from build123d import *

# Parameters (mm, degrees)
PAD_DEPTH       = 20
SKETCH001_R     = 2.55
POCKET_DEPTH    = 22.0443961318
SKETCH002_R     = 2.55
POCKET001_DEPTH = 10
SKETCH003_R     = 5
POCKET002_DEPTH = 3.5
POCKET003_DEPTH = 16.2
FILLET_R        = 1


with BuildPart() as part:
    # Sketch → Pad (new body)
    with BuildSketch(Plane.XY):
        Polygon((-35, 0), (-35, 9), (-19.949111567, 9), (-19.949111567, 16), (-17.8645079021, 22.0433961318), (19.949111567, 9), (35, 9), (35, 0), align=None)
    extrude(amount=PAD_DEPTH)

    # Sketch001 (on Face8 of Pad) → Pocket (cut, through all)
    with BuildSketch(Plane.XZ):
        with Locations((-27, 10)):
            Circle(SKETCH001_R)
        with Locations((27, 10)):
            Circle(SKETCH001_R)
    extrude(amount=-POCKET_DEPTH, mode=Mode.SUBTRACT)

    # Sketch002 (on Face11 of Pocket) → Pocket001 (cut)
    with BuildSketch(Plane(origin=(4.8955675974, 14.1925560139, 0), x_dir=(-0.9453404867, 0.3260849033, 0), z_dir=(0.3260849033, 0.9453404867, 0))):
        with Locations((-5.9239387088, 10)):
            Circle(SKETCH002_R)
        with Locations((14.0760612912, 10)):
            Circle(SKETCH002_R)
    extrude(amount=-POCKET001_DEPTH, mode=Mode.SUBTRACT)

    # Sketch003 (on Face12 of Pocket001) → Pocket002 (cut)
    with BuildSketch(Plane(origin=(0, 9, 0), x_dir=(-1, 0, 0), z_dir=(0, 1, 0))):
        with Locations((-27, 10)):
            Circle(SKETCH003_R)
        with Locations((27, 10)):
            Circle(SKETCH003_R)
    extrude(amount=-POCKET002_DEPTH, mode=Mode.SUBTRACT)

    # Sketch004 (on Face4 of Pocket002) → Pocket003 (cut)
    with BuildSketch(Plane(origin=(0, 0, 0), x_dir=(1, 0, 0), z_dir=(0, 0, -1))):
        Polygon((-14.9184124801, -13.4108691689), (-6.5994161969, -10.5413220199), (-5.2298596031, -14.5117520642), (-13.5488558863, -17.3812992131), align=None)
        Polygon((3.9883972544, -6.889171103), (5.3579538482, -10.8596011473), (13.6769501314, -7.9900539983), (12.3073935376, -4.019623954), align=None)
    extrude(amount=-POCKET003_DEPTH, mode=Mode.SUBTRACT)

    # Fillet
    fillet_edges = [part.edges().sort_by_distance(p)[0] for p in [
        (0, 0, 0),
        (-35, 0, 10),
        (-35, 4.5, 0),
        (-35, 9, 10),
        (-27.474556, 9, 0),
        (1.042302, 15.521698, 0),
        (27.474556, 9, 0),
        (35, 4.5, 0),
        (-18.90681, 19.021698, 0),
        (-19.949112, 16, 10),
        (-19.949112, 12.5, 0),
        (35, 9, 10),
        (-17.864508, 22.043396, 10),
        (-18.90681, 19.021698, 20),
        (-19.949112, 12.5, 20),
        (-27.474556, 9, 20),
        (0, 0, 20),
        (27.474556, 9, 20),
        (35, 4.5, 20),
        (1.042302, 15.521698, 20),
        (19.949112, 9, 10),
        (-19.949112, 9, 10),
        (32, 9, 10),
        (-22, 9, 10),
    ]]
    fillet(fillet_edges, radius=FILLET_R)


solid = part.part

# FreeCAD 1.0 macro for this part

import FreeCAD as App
import Part
import Sketcher
Q = App.Units.Quantity


def edges_at(feature, points):
    """Names of the edges that pass closest to the given points."""
    edges = feature.Shape.Edges
    near = lambda p: min(range(len(edges)), key=lambda i: edges[i].distToShape(Part.Vertex(*p))[0])
    return sorted({f"Edge{near(p) + 1}" for p in points})

doc = App.newDocument("Part")
body = doc.addObject("PartDesign::Body", "Body")

# Sketch on XY plane
sketch1 = body.newObject("Sketcher::SketchObject", "Sketch")
sketch1.AttachmentSupport = (doc.getObject("XY_Plane"), [""])
sketch1.MapMode = "FlatFace"
sketch1.addGeometry(Part.LineSegment(App.Vector(-35, 9, 0), App.Vector(-35, 0, 0)), False)
sketch1.addGeometry(Part.LineSegment(App.Vector(-35, 0, 0), App.Vector(35, 0, 0)), False)
sketch1.addGeometry(Part.LineSegment(App.Vector(35, 0, 0), App.Vector(35, 9, 0)), False)
sketch1.addGeometry(Part.LineSegment(App.Vector(35, 9, 0), App.Vector(19.949112, 9, 0)), False)
sketch1.addGeometry(Part.LineSegment(App.Vector(19.949112, 9, 0), App.Vector(-17.864508, 22.043396, 0)), False)
sketch1.addGeometry(Part.LineSegment(App.Vector(-17.864508, 22.043396, 0), App.Vector(-19.949112, 16, 0)), False)
sketch1.addGeometry(Part.LineSegment(App.Vector(-19.949112, 16, 0), App.Vector(-19.949112, 9, 0)), False)
sketch1.addGeometry(Part.LineSegment(App.Vector(-19.949112, 9, 0), App.Vector(-35, 9, 0)), False)
sketch1.addConstraint(Sketcher.Constraint("Coincident", 0, 2, 1, 1))
sketch1.addConstraint(Sketcher.Constraint("Coincident", 1, 2, 2, 1))
sketch1.addConstraint(Sketcher.Constraint("Coincident", 2, 2, 3, 1))
sketch1.addConstraint(Sketcher.Constraint("Coincident", 3, 2, 4, 1))
sketch1.addConstraint(Sketcher.Constraint("Coincident", 4, 2, 5, 1))
sketch1.addConstraint(Sketcher.Constraint("Coincident", 5, 2, 6, 1))
sketch1.addConstraint(Sketcher.Constraint("Coincident", 6, 2, 7, 1))
sketch1.addConstraint(Sketcher.Constraint("Coincident", 7, 2, 0, 1))
sketch1.addConstraint(Sketcher.Constraint("Vertical", 0))
sketch1.addConstraint(Sketcher.Constraint("Horizontal", 1))
sketch1.addConstraint(Sketcher.Constraint("Vertical", 2))
sketch1.addConstraint(Sketcher.Constraint("Horizontal", 3))
sketch1.addConstraint(Sketcher.Constraint("Vertical", 6))
sketch1.addConstraint(Sketcher.Constraint("Horizontal", 7))
sketch1.addConstraint(Sketcher.Constraint("Symmetric", 0, 2, 1, 2, -1, 1))
sketch1.addConstraint(Sketcher.Constraint("Symmetric", 3, 2, 6, 2, -2))
sketch1.addConstraint(Sketcher.Constraint("Perpendicular", 4, 5))
sketch1.addConstraint(Sketcher.Constraint("DistanceX", 1, 1, 1, 2, Q("70 mm")))
sketch1.addConstraint(Sketcher.Constraint("DistanceY", 0, 2, 0, 1, Q("9 mm")))
sketch1.addConstraint(Sketcher.Constraint("DistanceY", 6, 2, 6, 1, Q("7 mm")))
sketch1.addConstraint(Sketcher.Constraint("Distance", 4, Q("40 mm")))
sketch1.addConstraint(Sketcher.Constraint("DistanceX", 3, 2, 3, 1, Q("15.050888 mm")))
pad1 = body.newObject("PartDesign::Pad", "Pad")
pad1.Profile = sketch1
pad1.Length = 20

# Sketch on XZ plane
sketch2 = body.newObject("Sketcher::SketchObject", "Sketch001")
sketch2.AttachmentSupport = (doc.getObject("XZ_Plane"), [""])
sketch2.MapMode = "FlatFace"
sketch2.addGeometry(Part.Circle(App.Vector(-27, 10, 0), App.Vector(0, 0, 1), 2.55), False)
sketch2.addGeometry(Part.Circle(App.Vector(27, 10, 0), App.Vector(0, 0, 1), 2.55), False)
sketch2.addConstraint(Sketcher.Constraint("Equal", 0, 1))
sketch2.addConstraint(Sketcher.Constraint("Symmetric", 0, 3, 1, 3, -2))
sketch2.addConstraint(Sketcher.Constraint("Diameter", 0, Q("5.1 mm")))
sketch2.addConstraint(Sketcher.Constraint("DistanceX", 0, 3, -1, 1, Q("27 mm")))
sketch2.addConstraint(Sketcher.Constraint("DistanceY", -1, 1, 0, 3, Q("10 mm")))
pocket1 = body.newObject("PartDesign::Pocket", "Pocket")
pocket1.Profile = sketch2
pocket1.Type = "ThroughAll"

# Sketch on an angled plane
sketch3 = body.newObject("Sketcher::SketchObject", "Sketch002")
sketch3.Placement = App.Placement(App.Vector(4.895568, 14.192556, 0), App.Rotation(App.Vector(-0.945340487, 0.326084903, 0), App.Vector(0, 0, 1), App.Vector(0.326084903, 0.945340487, 0), "ZXY"))
sketch3.addGeometry(Part.Circle(App.Vector(-5.923939, 10, 0), App.Vector(0, 0, 1), 2.55), False)
sketch3.addGeometry(Part.Circle(App.Vector(14.076061, 10, 0), App.Vector(0, 0, 1), 2.55), False)
sketch3.addConstraint(Sketcher.Constraint("Equal", 0, 1))
sketch3.addConstraint(Sketcher.Constraint("Horizontal", 0, 3, 1, 3))
sketch3.addConstraint(Sketcher.Constraint("Diameter", 0, Q("5.1 mm")))
sketch3.addConstraint(Sketcher.Constraint("DistanceY", -1, 1, 0, 3, Q("10 mm")))
sketch3.addConstraint(Sketcher.Constraint("DistanceX", 0, 3, 1, 3, Q("20 mm")))
sketch3.addConstraint(Sketcher.Constraint("DistanceX", 0, 3, -1, 1, Q("5.923939 mm")))
pocket2 = body.newObject("PartDesign::Pocket", "Pocket001")
pocket2.Profile = sketch3
pocket2.Length = 10

# Sketch on XZ plane
sketch4 = body.newObject("Sketcher::SketchObject", "Sketch003")
sketch4.AttachmentSupport = (doc.getObject("XZ_Plane"), [""])
sketch4.MapMode = "FlatFace"
sketch4.AttachmentOffset = App.Placement(App.Vector(0, 0, -9), App.Rotation())
sketch4.addGeometry(Part.Circle(App.Vector(27, 10, 0), App.Vector(0, 0, 1), 5), False)
sketch4.addGeometry(Part.Circle(App.Vector(-27, 10, 0), App.Vector(0, 0, 1), 5), False)
sketch4.addConstraint(Sketcher.Constraint("Equal", 0, 1))
sketch4.addConstraint(Sketcher.Constraint("Symmetric", 0, 3, 1, 3, -2))
sketch4.addConstraint(Sketcher.Constraint("Diameter", 0, Q("10 mm")))
sketch4.addConstraint(Sketcher.Constraint("DistanceX", -1, 1, 0, 3, Q("27 mm")))
sketch4.addConstraint(Sketcher.Constraint("DistanceY", -1, 1, 0, 3, Q("10 mm")))
pocket3 = body.newObject("PartDesign::Pocket", "Pocket002")
pocket3.Profile = sketch4
pocket3.Length = 3.5
pocket3.Reversed = True

# Sketch on XY plane
sketch5 = body.newObject("Sketcher::SketchObject", "Sketch004")
sketch5.AttachmentSupport = (doc.getObject("XY_Plane"), [""])
sketch5.MapMode = "FlatFace"
sketch5.addGeometry(Part.LineSegment(App.Vector(-6.599416, 10.541322, 0), App.Vector(-14.918412, 13.410869, 0)), False)
sketch5.addGeometry(Part.LineSegment(App.Vector(-14.918412, 13.410869, 0), App.Vector(-13.548856, 17.381299, 0)), False)
sketch5.addGeometry(Part.LineSegment(App.Vector(-13.548856, 17.381299, 0), App.Vector(-5.22986, 14.511752, 0)), False)
sketch5.addGeometry(Part.LineSegment(App.Vector(-5.22986, 14.511752, 0), App.Vector(-6.599416, 10.541322, 0)), False)
sketch5.addGeometry(Part.LineSegment(App.Vector(3.988397, 6.889171, 0), App.Vector(5.357954, 10.859601, 0)), False)
sketch5.addGeometry(Part.LineSegment(App.Vector(5.357954, 10.859601, 0), App.Vector(13.67695, 7.990054, 0)), False)
sketch5.addGeometry(Part.LineSegment(App.Vector(13.67695, 7.990054, 0), App.Vector(12.307394, 4.019624, 0)), False)
sketch5.addGeometry(Part.LineSegment(App.Vector(12.307394, 4.019624, 0), App.Vector(3.988397, 6.889171, 0)), False)
sketch5.addConstraint(Sketcher.Constraint("Coincident", 0, 2, 1, 1))
sketch5.addConstraint(Sketcher.Constraint("Coincident", 1, 2, 2, 1))
sketch5.addConstraint(Sketcher.Constraint("Coincident", 2, 2, 3, 1))
sketch5.addConstraint(Sketcher.Constraint("Coincident", 3, 2, 0, 1))
sketch5.addConstraint(Sketcher.Constraint("Coincident", 4, 2, 5, 1))
sketch5.addConstraint(Sketcher.Constraint("Coincident", 5, 2, 6, 1))
sketch5.addConstraint(Sketcher.Constraint("Coincident", 6, 2, 7, 1))
sketch5.addConstraint(Sketcher.Constraint("Coincident", 7, 2, 4, 1))
sketch5.addConstraint(Sketcher.Constraint("Perpendicular", 0, 1))
sketch5.addConstraint(Sketcher.Constraint("Perpendicular", 1, 2))
sketch5.addConstraint(Sketcher.Constraint("Perpendicular", 2, 3))
sketch5.addConstraint(Sketcher.Constraint("Parallel", 3, 4))
sketch5.addConstraint(Sketcher.Constraint("Perpendicular", 4, 5))
sketch5.addConstraint(Sketcher.Constraint("Perpendicular", 5, 6))
sketch5.addConstraint(Sketcher.Constraint("Perpendicular", 6, 7))
sketch5.addConstraint(Sketcher.Constraint("Equal", 3, 4))
sketch5.addConstraint(Sketcher.Constraint("Equal", 2, 5))
sketch5.addConstraint(Sketcher.Constraint("Distance", 0, Q("8.8 mm")))
sketch5.addConstraint(Sketcher.Constraint("Distance", 1, Q("4.2 mm")))
sketch5.addConstraint(Sketcher.Constraint("DistanceY", -1, 1, 1, 2, Q("17.381299 mm")))
sketch5.addConstraint(Sketcher.Constraint("DistanceY", -1, 1, 4, 2, Q("10.859601 mm")))
sketch5.addConstraint(Sketcher.Constraint("DistanceY", -1, 1, 0, 2, Q("13.410869 mm")))
sketch5.addConstraint(Sketcher.Constraint("DistanceX", 2, 2, -1, 1, Q("5.22986 mm")))
sketch5.addConstraint(Sketcher.Constraint("DistanceX", -1, 1, 5, 2, Q("13.67695 mm")))
pocket4 = body.newObject("PartDesign::Pocket", "Pocket003")
pocket4.Profile = sketch5
pocket4.Length = 16.2
pocket4.Reversed = True
doc.recompute()

fillet = body.newObject("PartDesign::Fillet", "Fillet")
fillet.Base = (pocket4, edges_at(pocket4, [
    (0, 0, 0),
    (-35, 0, 10),
    (-35, 4.5, 0),
    (-35, 9, 10),
    (-27.475, 9, 0),
    (1.042, 15.522, 0),
    (27.475, 9, 0),
    (35, 4.5, 0),
    (-18.907, 19.022, 0),
    (-19.949, 16, 10),
    (-19.949, 12.5, 0),
    (35, 9, 10),
    (-17.865, 22.043, 10),
    (-18.907, 19.022, 20),
    (-19.949, 12.5, 20),
    (-27.475, 9, 20),
    (0, 0, 20),
    (27.475, 9, 20),
    (35, 4.5, 20),
    (1.042, 15.522, 20),
    (19.949, 9, 10),
    (-19.949, 9, 10),
    (32, 9, 10),
    (-22, 9, 10),
]))
fillet.Radius = 1

doc.recompute()
